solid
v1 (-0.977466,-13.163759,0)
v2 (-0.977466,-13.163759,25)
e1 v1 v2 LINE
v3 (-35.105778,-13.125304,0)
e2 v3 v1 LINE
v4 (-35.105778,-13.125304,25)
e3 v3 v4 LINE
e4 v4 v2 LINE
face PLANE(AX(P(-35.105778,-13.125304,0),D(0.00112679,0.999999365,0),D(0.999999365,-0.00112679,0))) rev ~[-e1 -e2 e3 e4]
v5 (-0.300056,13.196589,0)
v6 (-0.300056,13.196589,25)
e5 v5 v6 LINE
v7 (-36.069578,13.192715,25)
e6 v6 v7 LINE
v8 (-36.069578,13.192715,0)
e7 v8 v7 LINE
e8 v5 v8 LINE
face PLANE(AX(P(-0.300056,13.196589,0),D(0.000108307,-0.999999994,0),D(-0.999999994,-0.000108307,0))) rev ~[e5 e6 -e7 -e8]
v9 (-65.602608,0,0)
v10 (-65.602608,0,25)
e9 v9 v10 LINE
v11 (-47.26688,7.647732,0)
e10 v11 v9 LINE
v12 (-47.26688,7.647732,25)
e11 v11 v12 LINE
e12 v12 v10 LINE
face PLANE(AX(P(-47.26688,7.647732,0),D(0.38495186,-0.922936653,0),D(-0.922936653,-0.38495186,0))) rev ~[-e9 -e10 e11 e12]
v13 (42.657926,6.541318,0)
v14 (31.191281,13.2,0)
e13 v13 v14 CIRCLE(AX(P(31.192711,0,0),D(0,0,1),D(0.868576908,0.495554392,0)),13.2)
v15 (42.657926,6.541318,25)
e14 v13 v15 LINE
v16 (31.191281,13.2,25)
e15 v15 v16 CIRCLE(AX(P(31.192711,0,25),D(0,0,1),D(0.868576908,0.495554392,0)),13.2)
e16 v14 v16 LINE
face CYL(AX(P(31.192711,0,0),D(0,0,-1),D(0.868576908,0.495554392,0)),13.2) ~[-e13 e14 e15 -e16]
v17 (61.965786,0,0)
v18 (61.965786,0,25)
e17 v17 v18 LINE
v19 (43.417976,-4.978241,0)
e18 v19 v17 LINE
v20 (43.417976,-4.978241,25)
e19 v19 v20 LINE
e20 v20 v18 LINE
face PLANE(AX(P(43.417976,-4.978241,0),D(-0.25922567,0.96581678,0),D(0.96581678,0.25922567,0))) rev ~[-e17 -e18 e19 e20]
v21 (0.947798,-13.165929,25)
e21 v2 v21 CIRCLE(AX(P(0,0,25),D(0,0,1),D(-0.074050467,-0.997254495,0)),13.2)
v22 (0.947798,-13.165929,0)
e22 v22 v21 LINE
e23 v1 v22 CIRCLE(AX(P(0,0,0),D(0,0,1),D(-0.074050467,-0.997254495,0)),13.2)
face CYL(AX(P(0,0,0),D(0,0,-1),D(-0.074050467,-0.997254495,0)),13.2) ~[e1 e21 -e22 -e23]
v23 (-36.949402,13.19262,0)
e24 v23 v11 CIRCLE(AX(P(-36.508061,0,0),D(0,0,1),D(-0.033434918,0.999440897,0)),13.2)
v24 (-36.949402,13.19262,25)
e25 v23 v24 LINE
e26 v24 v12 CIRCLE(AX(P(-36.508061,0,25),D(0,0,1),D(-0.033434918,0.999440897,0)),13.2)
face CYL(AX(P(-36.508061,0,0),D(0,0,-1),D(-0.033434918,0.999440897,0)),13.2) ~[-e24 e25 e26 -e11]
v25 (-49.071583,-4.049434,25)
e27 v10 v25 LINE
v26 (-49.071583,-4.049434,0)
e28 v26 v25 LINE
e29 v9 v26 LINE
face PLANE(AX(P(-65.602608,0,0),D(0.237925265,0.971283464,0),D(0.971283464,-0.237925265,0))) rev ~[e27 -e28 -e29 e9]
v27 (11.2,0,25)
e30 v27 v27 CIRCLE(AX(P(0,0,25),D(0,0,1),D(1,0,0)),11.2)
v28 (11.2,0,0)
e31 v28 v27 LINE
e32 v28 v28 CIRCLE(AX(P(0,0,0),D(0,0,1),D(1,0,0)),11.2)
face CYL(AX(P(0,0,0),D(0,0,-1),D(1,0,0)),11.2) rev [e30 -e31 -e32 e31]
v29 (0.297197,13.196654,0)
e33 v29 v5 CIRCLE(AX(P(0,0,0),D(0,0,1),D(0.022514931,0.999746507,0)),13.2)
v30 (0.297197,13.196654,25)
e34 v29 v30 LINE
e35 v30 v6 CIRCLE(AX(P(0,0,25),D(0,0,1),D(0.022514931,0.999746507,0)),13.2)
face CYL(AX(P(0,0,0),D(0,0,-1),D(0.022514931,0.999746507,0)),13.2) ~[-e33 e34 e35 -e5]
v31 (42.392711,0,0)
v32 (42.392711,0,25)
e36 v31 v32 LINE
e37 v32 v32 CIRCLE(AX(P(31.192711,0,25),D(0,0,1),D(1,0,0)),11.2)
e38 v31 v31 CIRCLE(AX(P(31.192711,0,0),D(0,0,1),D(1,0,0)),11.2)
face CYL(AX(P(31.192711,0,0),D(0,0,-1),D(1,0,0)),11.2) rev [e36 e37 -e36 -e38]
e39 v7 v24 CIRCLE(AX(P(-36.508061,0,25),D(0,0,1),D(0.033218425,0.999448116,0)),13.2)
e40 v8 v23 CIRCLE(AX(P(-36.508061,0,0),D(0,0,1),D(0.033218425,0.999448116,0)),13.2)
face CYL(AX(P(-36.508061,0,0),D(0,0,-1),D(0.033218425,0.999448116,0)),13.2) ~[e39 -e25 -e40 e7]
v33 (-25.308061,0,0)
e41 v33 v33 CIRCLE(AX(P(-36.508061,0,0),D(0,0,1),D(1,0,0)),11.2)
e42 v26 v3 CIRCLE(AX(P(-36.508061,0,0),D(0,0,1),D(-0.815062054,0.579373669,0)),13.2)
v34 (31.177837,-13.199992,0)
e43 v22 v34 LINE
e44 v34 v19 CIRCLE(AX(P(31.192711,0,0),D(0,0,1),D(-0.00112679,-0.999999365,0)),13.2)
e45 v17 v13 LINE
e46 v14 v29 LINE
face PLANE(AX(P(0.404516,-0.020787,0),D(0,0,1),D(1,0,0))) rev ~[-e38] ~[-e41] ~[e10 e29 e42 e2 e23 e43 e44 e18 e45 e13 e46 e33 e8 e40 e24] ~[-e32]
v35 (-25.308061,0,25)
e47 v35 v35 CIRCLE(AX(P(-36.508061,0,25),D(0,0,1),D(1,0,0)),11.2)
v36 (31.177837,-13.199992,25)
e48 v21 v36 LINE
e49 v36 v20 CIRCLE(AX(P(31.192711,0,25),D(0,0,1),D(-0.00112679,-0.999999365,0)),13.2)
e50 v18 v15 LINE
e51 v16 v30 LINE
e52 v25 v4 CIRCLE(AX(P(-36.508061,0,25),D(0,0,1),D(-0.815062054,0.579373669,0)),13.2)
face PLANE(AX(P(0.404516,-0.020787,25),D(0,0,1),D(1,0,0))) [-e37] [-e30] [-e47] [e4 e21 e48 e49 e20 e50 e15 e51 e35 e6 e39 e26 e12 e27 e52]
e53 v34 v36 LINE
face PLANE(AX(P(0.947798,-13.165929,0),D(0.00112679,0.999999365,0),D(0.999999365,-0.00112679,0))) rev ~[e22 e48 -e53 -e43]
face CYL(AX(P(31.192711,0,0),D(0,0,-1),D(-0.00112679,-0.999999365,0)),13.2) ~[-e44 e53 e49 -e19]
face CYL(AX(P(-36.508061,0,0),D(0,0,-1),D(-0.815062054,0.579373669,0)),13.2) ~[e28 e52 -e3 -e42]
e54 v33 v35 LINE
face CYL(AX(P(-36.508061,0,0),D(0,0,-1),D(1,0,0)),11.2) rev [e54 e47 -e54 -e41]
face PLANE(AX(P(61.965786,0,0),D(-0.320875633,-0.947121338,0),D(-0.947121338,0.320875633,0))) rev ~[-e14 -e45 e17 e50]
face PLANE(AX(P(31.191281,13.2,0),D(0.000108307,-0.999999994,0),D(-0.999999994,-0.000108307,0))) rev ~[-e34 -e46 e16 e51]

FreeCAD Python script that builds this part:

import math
import FreeCAD as App
import Part
import Sketcher

doc = App.newDocument("Part")
body = doc.addObject("PartDesign::Body", "Body")

sketch1 = body.newObject("Sketcher::SketchObject", "Sketch")
sketch1.AttachmentSupport = (doc.getObject("XY_Plane"), [""])
sketch1.MapMode = "FlatFace"
sketch1.addGeometry([
    Part.LineSegment(App.Vector(0.9, -13.2, 0), App.Vector(31.2, -13.2, 0)),
    Part.ArcOfCircle(Part.Circle(App.Vector(31.2, 0, 0), App.Vector(0, 0, 1), 13.2), math.radians(-90), math.radians(-22)),
    Part.LineSegment(App.Vector(43.4, -5, 0), App.Vector(62, 0, 0)),
    Part.LineSegment(App.Vector(62, 0, 0), App.Vector(42.7, 6.5, 0)),
    Part.ArcOfCircle(Part.Circle(App.Vector(31.2, 0, 0), App.Vector(0, 0, 1), 13.2), math.radians(30), math.radians(90)),
    Part.LineSegment(App.Vector(31.2, 13.2, 0), App.Vector(0.3, 13.2, 0)),
    Part.ArcOfCircle(Part.Circle(App.Vector(0, 0, 0), App.Vector(0, 0, 1), 13.2), math.radians(88.71), math.radians(91.3)),
    Part.LineSegment(App.Vector(-0.3, 13.2, 0), App.Vector(-36.1, 13.2, 0)),
    Part.ArcOfCircle(Part.Circle(App.Vector(-36.5, 0, 0), App.Vector(0, 0, 1), 13.2), math.radians(88.1), math.radians(91.92)),
    Part.ArcOfCircle(Part.Circle(App.Vector(-36.5, 0, 0), App.Vector(0, 0, 1), 13.2), math.radians(92), math.radians(145)),
    Part.LineSegment(App.Vector(-47.3, 7.6, 0), App.Vector(-65.6, 0, 0)),
    Part.LineSegment(App.Vector(-65.6, 0, 0), App.Vector(-49.1, -4, 0)),
    Part.ArcOfCircle(Part.Circle(App.Vector(-36.5, 0, 0), App.Vector(0, 0, 1), 13.2), math.radians(-162), math.radians(-84)),
    Part.LineSegment(App.Vector(-35.1, -13.1, 0), App.Vector(-1, -13.2, 0)),
    Part.ArcOfCircle(Part.Circle(App.Vector(0, 0, 0), App.Vector(0, 0, 1), 13.2), math.radians(-94.25), math.radians(-85.88)),
    Part.Circle(App.Vector(-36.5, 0, 0), App.Vector(0, 0, 1), 11.2),
    Part.Circle(App.Vector(0, 0, 0), App.Vector(0, 0, 1), 11.2),
    Part.Circle(App.Vector(31.2, 0, 0), App.Vector(0, 0, 1), 11.2),
], False)
sketch1.addConstraint([
    Sketcher.Constraint("Tangent", 0, 2, 1, 1),
    Sketcher.Constraint("Coincident", 1, 2, 2, 1),
    Sketcher.Constraint("Coincident", 2, 2, 3, 1),
    Sketcher.Constraint("Coincident", 3, 2, 4, 1),
    Sketcher.Constraint("Tangent", 4, 2, 5, 1),
    Sketcher.Constraint("Coincident", 5, 2, 6, 1),
    Sketcher.Constraint("Coincident", 6, 2, 7, 1),
    Sketcher.Constraint("Coincident", 7, 2, 8, 1),
    Sketcher.Constraint("Tangent", 8, 2, 9, 1),
    Sketcher.Constraint("Coincident", 9, 2, 10, 1),
    Sketcher.Constraint("Coincident", 10, 2, 11, 1),
    Sketcher.Constraint("Coincident", 11, 2, 12, 1),
    Sketcher.Constraint("Coincident", 12, 2, 13, 1),
    Sketcher.Constraint("Coincident", 13, 2, 14, 1),
    Sketcher.Constraint("Coincident", 14, 2, 0, 1),
    Sketcher.Constraint("Coincident", 6, 3, -1, 1),
    Sketcher.Constraint("Coincident", 14, 3, -1, 1),
    Sketcher.Constraint("Coincident", 16, 3, -1, 1),
    Sketcher.Constraint("Coincident", 4, 3, 1, 3),
    Sketcher.Constraint("Coincident", 12, 3, 8, 3),
    Sketcher.Constraint("Coincident", 15, 3, 8, 3),
    Sketcher.Constraint("Coincident", 17, 3, 1, 3),
    Sketcher.Constraint("Equal", 1, 4),
    Sketcher.Constraint("Equal", 4, 6),
    Sketcher.Constraint("Equal", 6, 8),
    Sketcher.Constraint("Equal", 8, 9),
    Sketcher.Constraint("Equal", 9, 12),
    Sketcher.Constraint("Equal", 12, 14),
    Sketcher.Constraint("Equal", 15, 16),
    Sketcher.Constraint("Equal", 16, 17),
    Sketcher.Constraint("PointOnObject", 1, 3, -1),
    Sketcher.Constraint("PointOnObject", 8, 3, -1),
    Sketcher.Constraint("PointOnObject", 2, 2, -1),
    Sketcher.Constraint("PointOnObject", 10, 2, -1),
    Sketcher.Constraint("Parallel", 5, 7),
    Sketcher.Constraint("Parallel", 0, 13),
    Sketcher.Constraint("Diameter", 15, 22.4),
    Sketcher.Constraint("Radius", 1, 13.2),
    Sketcher.Constraint("DistanceX", 8, 2, -1, 1, 36.949402),
    Sketcher.Constraint("DistanceX", -1, 1, 14, 2, 0.947798),
    Sketcher.Constraint("DistanceX", 5, 2, 14, 2, 0.650601),
    Sketcher.Constraint("Distance", 0, 30.230058),
    Sketcher.Constraint("DistanceX", 8, 3, -1, 1, 36.508061),
    Sketcher.Constraint("DistanceY", 1, 2, -1, 1, 4.978241),
    Sketcher.Constraint("DistanceY", -1, 1, 6, 2, 13.196589),
    Sketcher.Constraint("DistanceX", 9, 2, -1, 1, 47.26688),
    Sketcher.Constraint("DistanceX", 10, 2, -1, 1, 65.602608),
    Sketcher.Constraint("DistanceY", 13, 2, -1, 1, 13.163759),
    Sketcher.Constraint("DistanceX", 1, 2, 2, 2, 18.54781),
    Sketcher.Constraint("DistanceX", 3, 2, 1, 2, 0.76005),
    Sketcher.Constraint("DistanceX", 11, 2, 9, 3, 12.563522),
])
pad1 = body.newObject("PartDesign::Pad", "Pad")
pad1.Profile = sketch1
pad1.Length = 25

doc.recompute()
